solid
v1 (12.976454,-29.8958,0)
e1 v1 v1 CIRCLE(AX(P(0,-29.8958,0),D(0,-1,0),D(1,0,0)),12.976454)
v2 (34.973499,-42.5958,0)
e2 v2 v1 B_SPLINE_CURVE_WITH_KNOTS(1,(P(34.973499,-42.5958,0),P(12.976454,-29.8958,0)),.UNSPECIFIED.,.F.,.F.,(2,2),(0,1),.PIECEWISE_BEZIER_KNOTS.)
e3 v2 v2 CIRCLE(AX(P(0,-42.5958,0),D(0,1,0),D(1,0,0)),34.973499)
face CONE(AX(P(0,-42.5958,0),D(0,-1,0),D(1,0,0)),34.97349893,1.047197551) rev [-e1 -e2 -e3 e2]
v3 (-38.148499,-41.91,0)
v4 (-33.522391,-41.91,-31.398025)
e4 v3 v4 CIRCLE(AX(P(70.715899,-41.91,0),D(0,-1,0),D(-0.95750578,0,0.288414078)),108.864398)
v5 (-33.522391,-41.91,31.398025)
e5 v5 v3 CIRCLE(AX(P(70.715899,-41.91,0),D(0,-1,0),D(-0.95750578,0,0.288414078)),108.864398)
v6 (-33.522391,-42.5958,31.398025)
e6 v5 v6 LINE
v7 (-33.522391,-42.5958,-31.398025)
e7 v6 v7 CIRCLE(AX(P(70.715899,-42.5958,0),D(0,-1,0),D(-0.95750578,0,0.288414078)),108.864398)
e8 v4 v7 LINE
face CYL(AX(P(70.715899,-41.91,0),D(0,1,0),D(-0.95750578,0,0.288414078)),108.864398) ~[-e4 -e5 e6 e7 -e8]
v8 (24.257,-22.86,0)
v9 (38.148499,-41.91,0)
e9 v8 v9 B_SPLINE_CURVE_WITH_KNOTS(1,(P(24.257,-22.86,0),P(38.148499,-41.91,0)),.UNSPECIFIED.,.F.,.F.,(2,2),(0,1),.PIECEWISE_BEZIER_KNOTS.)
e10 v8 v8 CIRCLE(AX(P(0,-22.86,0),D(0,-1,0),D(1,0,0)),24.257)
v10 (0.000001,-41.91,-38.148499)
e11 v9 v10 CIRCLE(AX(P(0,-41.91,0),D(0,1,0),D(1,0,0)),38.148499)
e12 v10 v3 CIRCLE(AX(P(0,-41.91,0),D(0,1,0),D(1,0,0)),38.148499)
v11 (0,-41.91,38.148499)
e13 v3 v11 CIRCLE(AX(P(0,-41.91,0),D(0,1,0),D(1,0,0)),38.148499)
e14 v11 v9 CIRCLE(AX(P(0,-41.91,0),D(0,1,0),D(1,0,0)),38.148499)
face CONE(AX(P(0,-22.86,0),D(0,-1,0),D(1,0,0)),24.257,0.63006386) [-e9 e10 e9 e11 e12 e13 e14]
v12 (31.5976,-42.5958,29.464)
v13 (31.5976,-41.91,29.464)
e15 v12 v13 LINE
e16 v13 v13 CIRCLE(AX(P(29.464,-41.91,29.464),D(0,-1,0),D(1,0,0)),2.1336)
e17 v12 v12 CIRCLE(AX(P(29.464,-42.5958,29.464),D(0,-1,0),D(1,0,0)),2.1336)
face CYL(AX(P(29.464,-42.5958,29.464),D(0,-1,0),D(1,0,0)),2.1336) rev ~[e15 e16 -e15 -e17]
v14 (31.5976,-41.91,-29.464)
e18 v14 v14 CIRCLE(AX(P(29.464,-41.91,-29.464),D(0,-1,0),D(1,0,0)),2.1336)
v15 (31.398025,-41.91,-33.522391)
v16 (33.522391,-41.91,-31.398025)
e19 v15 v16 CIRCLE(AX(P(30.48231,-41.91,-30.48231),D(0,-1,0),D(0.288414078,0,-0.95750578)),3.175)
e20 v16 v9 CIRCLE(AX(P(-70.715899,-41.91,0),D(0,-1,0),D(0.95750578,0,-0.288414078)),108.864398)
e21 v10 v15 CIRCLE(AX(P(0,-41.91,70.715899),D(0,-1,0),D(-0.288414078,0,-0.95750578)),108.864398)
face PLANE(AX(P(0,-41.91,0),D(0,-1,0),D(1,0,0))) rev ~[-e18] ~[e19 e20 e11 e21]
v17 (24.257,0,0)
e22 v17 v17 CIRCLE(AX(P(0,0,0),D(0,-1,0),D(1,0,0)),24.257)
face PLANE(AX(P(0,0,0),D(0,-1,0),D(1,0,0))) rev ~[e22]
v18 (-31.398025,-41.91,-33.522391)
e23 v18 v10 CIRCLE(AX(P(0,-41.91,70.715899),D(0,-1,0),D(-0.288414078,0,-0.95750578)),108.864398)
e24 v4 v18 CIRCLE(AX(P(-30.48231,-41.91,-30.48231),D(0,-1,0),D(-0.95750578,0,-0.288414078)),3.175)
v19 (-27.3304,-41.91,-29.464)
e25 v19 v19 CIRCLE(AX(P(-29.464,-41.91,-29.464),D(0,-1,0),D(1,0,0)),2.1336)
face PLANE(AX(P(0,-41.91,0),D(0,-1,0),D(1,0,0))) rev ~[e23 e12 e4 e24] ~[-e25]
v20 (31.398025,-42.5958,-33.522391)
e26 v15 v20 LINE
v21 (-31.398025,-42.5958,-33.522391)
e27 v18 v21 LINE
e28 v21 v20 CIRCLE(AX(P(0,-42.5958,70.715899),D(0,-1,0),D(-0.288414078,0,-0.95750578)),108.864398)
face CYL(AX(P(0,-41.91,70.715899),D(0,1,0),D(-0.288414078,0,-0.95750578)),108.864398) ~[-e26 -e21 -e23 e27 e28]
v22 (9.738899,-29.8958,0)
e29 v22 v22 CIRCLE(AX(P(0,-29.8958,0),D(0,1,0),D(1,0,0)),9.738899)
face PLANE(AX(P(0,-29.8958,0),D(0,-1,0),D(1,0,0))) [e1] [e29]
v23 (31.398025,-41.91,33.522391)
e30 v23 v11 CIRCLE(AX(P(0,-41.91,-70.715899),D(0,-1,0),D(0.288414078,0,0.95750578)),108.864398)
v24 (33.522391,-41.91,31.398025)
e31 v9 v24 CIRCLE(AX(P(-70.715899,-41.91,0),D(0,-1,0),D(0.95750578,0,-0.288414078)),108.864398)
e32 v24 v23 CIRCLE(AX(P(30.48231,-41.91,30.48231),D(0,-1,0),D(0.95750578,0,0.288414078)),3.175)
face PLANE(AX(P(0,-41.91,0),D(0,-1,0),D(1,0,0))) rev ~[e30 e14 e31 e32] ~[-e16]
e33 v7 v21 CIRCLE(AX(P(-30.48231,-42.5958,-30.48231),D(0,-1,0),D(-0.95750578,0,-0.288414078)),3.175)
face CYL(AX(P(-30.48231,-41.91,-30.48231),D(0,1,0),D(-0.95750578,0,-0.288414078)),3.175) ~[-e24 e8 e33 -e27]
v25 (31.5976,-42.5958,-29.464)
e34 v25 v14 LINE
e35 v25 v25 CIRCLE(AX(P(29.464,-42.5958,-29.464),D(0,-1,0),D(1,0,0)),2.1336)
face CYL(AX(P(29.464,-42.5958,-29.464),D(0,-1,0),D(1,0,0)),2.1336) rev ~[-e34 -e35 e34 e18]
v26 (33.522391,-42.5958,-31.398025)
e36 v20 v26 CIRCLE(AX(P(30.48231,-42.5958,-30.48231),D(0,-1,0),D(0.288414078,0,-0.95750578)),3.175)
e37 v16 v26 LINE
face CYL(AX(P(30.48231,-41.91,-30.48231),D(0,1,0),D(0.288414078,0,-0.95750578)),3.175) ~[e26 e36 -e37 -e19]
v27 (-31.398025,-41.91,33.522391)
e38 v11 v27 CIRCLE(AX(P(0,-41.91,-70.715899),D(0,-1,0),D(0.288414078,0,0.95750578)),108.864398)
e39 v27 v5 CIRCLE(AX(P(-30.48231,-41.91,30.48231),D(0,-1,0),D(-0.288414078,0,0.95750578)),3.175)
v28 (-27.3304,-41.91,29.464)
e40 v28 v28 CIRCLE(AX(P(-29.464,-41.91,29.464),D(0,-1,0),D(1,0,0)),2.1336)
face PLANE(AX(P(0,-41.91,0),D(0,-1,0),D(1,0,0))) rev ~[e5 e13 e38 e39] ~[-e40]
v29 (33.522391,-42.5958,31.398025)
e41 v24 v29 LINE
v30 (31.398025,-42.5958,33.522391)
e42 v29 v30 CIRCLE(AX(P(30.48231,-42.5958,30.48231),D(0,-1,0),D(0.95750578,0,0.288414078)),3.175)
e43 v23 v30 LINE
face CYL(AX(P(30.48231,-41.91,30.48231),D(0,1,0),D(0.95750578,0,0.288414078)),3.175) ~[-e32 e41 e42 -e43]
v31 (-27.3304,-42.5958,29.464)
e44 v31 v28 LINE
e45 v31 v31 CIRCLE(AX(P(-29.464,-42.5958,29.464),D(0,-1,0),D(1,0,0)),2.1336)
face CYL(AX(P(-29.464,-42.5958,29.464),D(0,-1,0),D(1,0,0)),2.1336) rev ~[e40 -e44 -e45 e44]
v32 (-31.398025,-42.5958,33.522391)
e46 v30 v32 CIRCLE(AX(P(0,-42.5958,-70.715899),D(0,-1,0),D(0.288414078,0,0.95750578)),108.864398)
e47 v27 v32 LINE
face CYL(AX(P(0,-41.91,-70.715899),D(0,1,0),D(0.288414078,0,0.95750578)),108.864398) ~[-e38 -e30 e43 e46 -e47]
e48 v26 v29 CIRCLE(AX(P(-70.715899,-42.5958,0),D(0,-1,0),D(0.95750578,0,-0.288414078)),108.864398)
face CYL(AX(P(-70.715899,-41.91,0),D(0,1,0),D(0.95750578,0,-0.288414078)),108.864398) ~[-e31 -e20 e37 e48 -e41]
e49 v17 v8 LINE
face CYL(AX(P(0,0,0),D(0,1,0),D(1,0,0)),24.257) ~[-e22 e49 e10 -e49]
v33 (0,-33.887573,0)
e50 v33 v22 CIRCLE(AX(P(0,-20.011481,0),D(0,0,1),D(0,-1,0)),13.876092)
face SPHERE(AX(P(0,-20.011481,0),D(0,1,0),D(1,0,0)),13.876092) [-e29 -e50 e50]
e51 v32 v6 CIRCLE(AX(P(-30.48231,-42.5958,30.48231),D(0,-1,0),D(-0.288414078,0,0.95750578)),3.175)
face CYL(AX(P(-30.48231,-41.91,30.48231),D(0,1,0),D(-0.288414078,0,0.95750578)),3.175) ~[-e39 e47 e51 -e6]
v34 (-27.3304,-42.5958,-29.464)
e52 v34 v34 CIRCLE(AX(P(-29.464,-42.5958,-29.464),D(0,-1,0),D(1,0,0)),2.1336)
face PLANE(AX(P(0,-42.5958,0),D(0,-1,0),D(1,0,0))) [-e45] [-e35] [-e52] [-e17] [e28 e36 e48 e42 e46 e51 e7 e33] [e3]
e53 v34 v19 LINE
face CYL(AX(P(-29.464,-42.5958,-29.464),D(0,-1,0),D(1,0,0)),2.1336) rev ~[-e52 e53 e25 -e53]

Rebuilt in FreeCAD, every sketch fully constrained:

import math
import FreeCAD as App
import Part
import Sketcher

V = App.Vector
Q = App.Units.Quantity

doc = App.newDocument("Part")
body = doc.addObject("PartDesign::Body", "Body")

sketch1 = body.newObject("Sketcher::SketchObject", "Sketch")
sketch1.AttachmentSupport = (doc.getObject("XZ_Plane"), [""])
sketch1.MapMode = "FlatFace"
sketch1.addGeometry(Part.Circle(V(0, 0, 0), V(0, 0, 1), 24), False)
sketch1.addConstraint([
    Sketcher.Constraint("Coincident", 0, 3, -1, 1),
    Sketcher.Constraint("Diameter", 0, Q("1.91 in")),
])
pad1 = body.newObject("PartDesign::Pad", "Pad")
pad1.Profile = sketch1
pad1.Length = Q("0.9 in")

sketch2 = body.newObject("Sketcher::SketchObject", "Sketch001")
sketch2.AttachmentSupport = (doc.getObject("XZ_Plane"), [""])
sketch2.MapMode = "FlatFace"
sketch2.AttachmentOffset = App.Placement(V(0, 0, 0.9 * 25.4), App.Rotation())
sketch2.addGeometry(Part.Circle(V(0, 0, 0), V(0, 0, 1), 24), False)
sketch2.addConstraint([
    Sketcher.Constraint("Coincident", 0, 3, -1, 1),
    Sketcher.Constraint("Diameter", 0, Q("1.91 in")),
])
pad2 = body.newObject("PartDesign::Pad", "Pad001")
pad2.Profile = sketch2
pad2.Length = Q("0.75 in")
pad2.TaperAngle = 36.1

sketch3 = body.newObject("Sketcher::SketchObject", "Sketch002")
sketch3.AttachmentSupport = (doc.getObject("XZ_Plane"), [""])
sketch3.MapMode = "FlatFace"
sketch3.AttachmentOffset = App.Placement(V(0, 0, 1.65 * 25.4), App.Rotation())
sketch3.addGeometry([
    Part.ArcOfCircle(Part.Circle(V(30.5, 30.5, 0), V(0, 0, 1), 3.2), math.radians(17), math.radians(73)),
    Part.ArcOfCircle(Part.Circle(V(0, -70.7, 0), V(0, 0, 1), 108.9), math.radians(73), math.radians(107)),
    Part.ArcOfCircle(Part.Circle(V(-30.5, 30.5, 0), V(0, 0, 1), 3.2), math.radians(107), math.radians(163)),
    Part.ArcOfCircle(Part.Circle(V(70.7, 0, 0), V(0, 0, 1), 108.9), math.radians(163), math.radians(197)),
    Part.ArcOfCircle(Part.Circle(V(-30.5, -30.5, 0), V(0, 0, 1), 3.2), math.radians(-163), math.radians(-107)),
    Part.ArcOfCircle(Part.Circle(V(0, 70.7, 0), V(0, 0, 1), 108.9), math.radians(-107), math.radians(-73)),
    Part.ArcOfCircle(Part.Circle(V(30.5, -30.5, 0), V(0, 0, 1), 3.2), math.radians(-73), math.radians(-17)),
    Part.ArcOfCircle(Part.Circle(V(-70.7, 0, 0), V(0, 0, 1), 108.9), math.radians(-17), math.radians(17)),
], False)
sketch3.addConstraint([
    Sketcher.Constraint("Tangent", 0, 2, 1, 1),
    Sketcher.Constraint("Tangent", 1, 2, 2, 1),
    Sketcher.Constraint("Tangent", 2, 2, 3, 1),
    Sketcher.Constraint("Tangent", 3, 2, 4, 1),
    Sketcher.Constraint("Tangent", 4, 2, 5, 1),
    Sketcher.Constraint("Tangent", 5, 2, 6, 1),
    Sketcher.Constraint("Tangent", 6, 2, 7, 1),
    Sketcher.Constraint("Tangent", 7, 2, 0, 1),
    Sketcher.Constraint("Equal", 0, 2),
    Sketcher.Constraint("Equal", 1, 3),
    Sketcher.Constraint("Equal", 2, 4),
    Sketcher.Constraint("Equal", 3, 5),
    Sketcher.Constraint("Equal", 4, 6),
    Sketcher.Constraint("Equal", 5, 7),
    Sketcher.Constraint("Symmetric", 0, 3, 4, 3, -1, 1),
    Sketcher.Constraint("Symmetric", 2, 3, 6, 3, -1, 1),
    Sketcher.Constraint("Symmetric", 0, 3, 2, 3, -2),
    Sketcher.Constraint("Radius", 0, Q("0.125 in")),
    Sketcher.Constraint("Radius", 1, Q("4.2859999 in")),
    Sketcher.Constraint("DistanceY", 1, 3, -1, 1, Q("70.715899 mm")),
    Sketcher.Constraint("DistanceX", -1, 1, 3, 3, Q("70.715899 mm")),
])
pad3 = body.newObject("PartDesign::Pad", "Pad002")
pad3.Profile = sketch3
pad3.Length = Q("0.027 in")

sketch4 = body.newObject("Sketcher::SketchObject", "Sketch003")
sketch4.AttachmentSupport = (doc.getObject("XZ_Plane"), [""])
sketch4.MapMode = "FlatFace"
sketch4.AttachmentOffset = App.Placement(V(0, 0, 1.677 * 25.4), App.Rotation())
sketch4.addGeometry(Part.Circle(V(0, 0, 0), V(0, 0, 1), 35), False)
sketch4.addConstraint([
    Sketcher.Constraint("Coincident", 0, 3, -1, 1),
    Sketcher.Constraint("Diameter", 0, Q("69.946998 mm")),
])
pocket1 = body.newObject("PartDesign::Pocket", "Pocket")
pocket1.Profile = sketch4
pocket1.Length = Q("0.5 in")
pocket1.TaperAngle = -60

sketch5 = body.newObject("Sketcher::SketchObject", "Sketch004")
sketch5.AttachmentSupport = (doc.getObject("XZ_Plane"), [""])
sketch5.MapMode = "FlatFace"
sketch5.AttachmentOffset = App.Placement(V(0, 0, 1.677 * 25.4), App.Rotation())
sketch5.addGeometry([
    Part.Circle(V(-29.5, 29.5, 0), V(0, 0, 1), 2.1),
    Part.Circle(V(29.5, 29.5, 0), V(0, 0, 1), 2.1),
    Part.Circle(V(-29.5, -29.5, 0), V(0, 0, 1), 2.1),
    Part.Circle(V(29.5, -29.5, 0), V(0, 0, 1), 2.1),
], False)
sketch5.addConstraint([
    Sketcher.Constraint("Equal", 0, 1),
    Sketcher.Constraint("Equal", 1, 2),
    Sketcher.Constraint("Equal", 2, 3),
    Sketcher.Constraint("Symmetric", 1, 3, 2, 3, -1, 1),
    Sketcher.Constraint("Symmetric", 0, 3, 3, 3, -1, 1),
    Sketcher.Constraint("Symmetric", 0, 3, 1, 3, -2),
    Sketcher.Constraint("Diameter", 0, Q("0.168 in")),
    Sketcher.Constraint("DistanceX", 0, 3, -1, 1, Q("1.16 in")),
    Sketcher.Constraint("DistanceY", -1, 1, 0, 3, Q("1.16 in")),
])
pocket2 = body.newObject("PartDesign::Pocket", "Pocket001")
pocket2.Profile = sketch5
pocket2.Type = "ThroughAll"

sketch6 = body.newObject("Sketcher::SketchObject", "Sketch005")
sketch6.AttachmentSupport = (doc.getObject("XY_Plane"), [""])
sketch6.MapMode = "FlatFace"
sketch6.addGeometry([
    Part.LineSegment(V(0, -20, 0), V(0, -34, 0)),
    Part.ArcOfCircle(Part.Circle(V(0, -20, 0), V(0, 0, 1), 14), math.radians(-90), math.radians(-40)),
    Part.LineSegment(V(11, -29, 0), V(0, -20, 0)),
], False)
sketch6.addConstraint([
    Sketcher.Constraint("Coincident", 0, 2, 1, 1),
    Sketcher.Constraint("Coincident", 1, 2, 2, 1),
    Sketcher.Constraint("Coincident", 2, 2, 0, 1),
    Sketcher.Constraint("Vertical", 0),
    Sketcher.Constraint("Coincident", 2, 2, 1, 3),
    Sketcher.Constraint("PointOnObject", 1, 3, -2),
    Sketcher.Constraint("Radius", 1, Q("13.876092 mm")),
    Sketcher.Constraint("DistanceY", 1, 2, -1, 1, Q("28.865201 mm")),
    Sketcher.Constraint("DistanceY", 1, 3, -1, 1, Q("20.011481 mm")),
])
revolution = body.newObject("PartDesign::Revolution", "Revolution")
revolution.Profile = sketch6
revolution.ReferenceAxis = (sketch6, ["V_Axis"])
revolution.Angle = 360

doc.recompute()
